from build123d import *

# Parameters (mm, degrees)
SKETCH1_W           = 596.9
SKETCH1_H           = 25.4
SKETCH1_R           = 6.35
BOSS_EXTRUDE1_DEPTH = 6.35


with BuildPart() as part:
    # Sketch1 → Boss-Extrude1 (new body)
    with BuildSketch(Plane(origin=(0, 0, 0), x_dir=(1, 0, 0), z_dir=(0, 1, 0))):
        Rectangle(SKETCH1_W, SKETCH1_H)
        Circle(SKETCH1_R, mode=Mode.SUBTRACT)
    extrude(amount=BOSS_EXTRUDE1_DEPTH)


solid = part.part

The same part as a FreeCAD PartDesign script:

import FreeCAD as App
import Part
import Sketcher
from FreeCAD import Vector
Q = App.Units.Quantity


def add_polygon(sketch, points):
    """Adds a closed chain of lines whose ends are joined by coincident constraints."""
    first, n = sketch.GeometryCount, len(points)
    for a, b in zip(points, points[1:] + points[:1]):
        sketch.addGeometry(Part.LineSegment(App.Vector(*a, 0), App.Vector(*b, 0)), False)
    for i in range(n):
        sketch.addConstraint(Sketcher.Constraint("Coincident", first + i, 2, first + (i + 1) % n, 1))

doc = App.newDocument("Part")
params = doc.addObject("Spreadsheet::Sheet", "Params")
for row, (alias, value) in enumerate([
    ("sketch1_diameter", "0.5 in"),
    ("sketch1_height", "1 in"),
    ("sketch1_width", "23.5 in"),
    ("pad1_length", "0.25 in"),
], start=1):
    params.set(f"A{row}", alias)
    params.set(f"B{row}", "=" + value)
    params.setAlias(f"B{row}", alias)

body = doc.addObject("PartDesign::Body", "Body")

# Sketch on XZ plane
sketch1 = doc.addObject("Sketcher::SketchObject", "Sketch")
body.addObject(sketch1)
sketch1.AttachmentSupport = (doc.XZ_Plane, [""])
sketch1.MapMode = "FlatFace"
add_polygon(sketch1, [(-298.45, -12.7), (-298.45, 12.7), (298.45, 12.7), (298.45, -12.7)])  # lines 0-3
sketch1.addGeometry(Part.Circle(Vector(0, 0, 0), Vector(0, 0, 1), 6.35), False)  # 4
sketch1.addConstraint(Sketcher.Constraint("Vertical", 0))
sketch1.addConstraint(Sketcher.Constraint("Horizontal", 1))
sketch1.addConstraint(Sketcher.Constraint("Vertical", 2))
sketch1.addConstraint(Sketcher.Constraint("Horizontal", 3))
sketch1.addConstraint(Sketcher.Constraint("Coincident", 4, 3, -1, 1))
sketch1.addConstraint(Sketcher.Constraint("Symmetric", 0, 2, 2, 2, -1, 1))
sketch1.addConstraint(Sketcher.Constraint("Diameter", 4, Q("0.5 in")))
sketch1.addConstraint(Sketcher.Constraint("DistanceY", 0, 1, 0, 2, Q("1 in")))
sketch1.addConstraint(Sketcher.Constraint("DistanceX", 1, 1, 1, 2, Q("23.5 in")))
sketch1.setExpression("Constraints[10]", "Params.sketch1_diameter")
sketch1.setExpression("Constraints[11]", "Params.sketch1_height")
sketch1.setExpression("Constraints[12]", "Params.sketch1_width")
pad1 = doc.addObject("PartDesign::Pad", "Pad")
body.addObject(pad1)
pad1.Profile = sketch1
pad1.setExpression("Length", "Params.pad1_length")
pad1.Reversed = True

doc.recompute()
